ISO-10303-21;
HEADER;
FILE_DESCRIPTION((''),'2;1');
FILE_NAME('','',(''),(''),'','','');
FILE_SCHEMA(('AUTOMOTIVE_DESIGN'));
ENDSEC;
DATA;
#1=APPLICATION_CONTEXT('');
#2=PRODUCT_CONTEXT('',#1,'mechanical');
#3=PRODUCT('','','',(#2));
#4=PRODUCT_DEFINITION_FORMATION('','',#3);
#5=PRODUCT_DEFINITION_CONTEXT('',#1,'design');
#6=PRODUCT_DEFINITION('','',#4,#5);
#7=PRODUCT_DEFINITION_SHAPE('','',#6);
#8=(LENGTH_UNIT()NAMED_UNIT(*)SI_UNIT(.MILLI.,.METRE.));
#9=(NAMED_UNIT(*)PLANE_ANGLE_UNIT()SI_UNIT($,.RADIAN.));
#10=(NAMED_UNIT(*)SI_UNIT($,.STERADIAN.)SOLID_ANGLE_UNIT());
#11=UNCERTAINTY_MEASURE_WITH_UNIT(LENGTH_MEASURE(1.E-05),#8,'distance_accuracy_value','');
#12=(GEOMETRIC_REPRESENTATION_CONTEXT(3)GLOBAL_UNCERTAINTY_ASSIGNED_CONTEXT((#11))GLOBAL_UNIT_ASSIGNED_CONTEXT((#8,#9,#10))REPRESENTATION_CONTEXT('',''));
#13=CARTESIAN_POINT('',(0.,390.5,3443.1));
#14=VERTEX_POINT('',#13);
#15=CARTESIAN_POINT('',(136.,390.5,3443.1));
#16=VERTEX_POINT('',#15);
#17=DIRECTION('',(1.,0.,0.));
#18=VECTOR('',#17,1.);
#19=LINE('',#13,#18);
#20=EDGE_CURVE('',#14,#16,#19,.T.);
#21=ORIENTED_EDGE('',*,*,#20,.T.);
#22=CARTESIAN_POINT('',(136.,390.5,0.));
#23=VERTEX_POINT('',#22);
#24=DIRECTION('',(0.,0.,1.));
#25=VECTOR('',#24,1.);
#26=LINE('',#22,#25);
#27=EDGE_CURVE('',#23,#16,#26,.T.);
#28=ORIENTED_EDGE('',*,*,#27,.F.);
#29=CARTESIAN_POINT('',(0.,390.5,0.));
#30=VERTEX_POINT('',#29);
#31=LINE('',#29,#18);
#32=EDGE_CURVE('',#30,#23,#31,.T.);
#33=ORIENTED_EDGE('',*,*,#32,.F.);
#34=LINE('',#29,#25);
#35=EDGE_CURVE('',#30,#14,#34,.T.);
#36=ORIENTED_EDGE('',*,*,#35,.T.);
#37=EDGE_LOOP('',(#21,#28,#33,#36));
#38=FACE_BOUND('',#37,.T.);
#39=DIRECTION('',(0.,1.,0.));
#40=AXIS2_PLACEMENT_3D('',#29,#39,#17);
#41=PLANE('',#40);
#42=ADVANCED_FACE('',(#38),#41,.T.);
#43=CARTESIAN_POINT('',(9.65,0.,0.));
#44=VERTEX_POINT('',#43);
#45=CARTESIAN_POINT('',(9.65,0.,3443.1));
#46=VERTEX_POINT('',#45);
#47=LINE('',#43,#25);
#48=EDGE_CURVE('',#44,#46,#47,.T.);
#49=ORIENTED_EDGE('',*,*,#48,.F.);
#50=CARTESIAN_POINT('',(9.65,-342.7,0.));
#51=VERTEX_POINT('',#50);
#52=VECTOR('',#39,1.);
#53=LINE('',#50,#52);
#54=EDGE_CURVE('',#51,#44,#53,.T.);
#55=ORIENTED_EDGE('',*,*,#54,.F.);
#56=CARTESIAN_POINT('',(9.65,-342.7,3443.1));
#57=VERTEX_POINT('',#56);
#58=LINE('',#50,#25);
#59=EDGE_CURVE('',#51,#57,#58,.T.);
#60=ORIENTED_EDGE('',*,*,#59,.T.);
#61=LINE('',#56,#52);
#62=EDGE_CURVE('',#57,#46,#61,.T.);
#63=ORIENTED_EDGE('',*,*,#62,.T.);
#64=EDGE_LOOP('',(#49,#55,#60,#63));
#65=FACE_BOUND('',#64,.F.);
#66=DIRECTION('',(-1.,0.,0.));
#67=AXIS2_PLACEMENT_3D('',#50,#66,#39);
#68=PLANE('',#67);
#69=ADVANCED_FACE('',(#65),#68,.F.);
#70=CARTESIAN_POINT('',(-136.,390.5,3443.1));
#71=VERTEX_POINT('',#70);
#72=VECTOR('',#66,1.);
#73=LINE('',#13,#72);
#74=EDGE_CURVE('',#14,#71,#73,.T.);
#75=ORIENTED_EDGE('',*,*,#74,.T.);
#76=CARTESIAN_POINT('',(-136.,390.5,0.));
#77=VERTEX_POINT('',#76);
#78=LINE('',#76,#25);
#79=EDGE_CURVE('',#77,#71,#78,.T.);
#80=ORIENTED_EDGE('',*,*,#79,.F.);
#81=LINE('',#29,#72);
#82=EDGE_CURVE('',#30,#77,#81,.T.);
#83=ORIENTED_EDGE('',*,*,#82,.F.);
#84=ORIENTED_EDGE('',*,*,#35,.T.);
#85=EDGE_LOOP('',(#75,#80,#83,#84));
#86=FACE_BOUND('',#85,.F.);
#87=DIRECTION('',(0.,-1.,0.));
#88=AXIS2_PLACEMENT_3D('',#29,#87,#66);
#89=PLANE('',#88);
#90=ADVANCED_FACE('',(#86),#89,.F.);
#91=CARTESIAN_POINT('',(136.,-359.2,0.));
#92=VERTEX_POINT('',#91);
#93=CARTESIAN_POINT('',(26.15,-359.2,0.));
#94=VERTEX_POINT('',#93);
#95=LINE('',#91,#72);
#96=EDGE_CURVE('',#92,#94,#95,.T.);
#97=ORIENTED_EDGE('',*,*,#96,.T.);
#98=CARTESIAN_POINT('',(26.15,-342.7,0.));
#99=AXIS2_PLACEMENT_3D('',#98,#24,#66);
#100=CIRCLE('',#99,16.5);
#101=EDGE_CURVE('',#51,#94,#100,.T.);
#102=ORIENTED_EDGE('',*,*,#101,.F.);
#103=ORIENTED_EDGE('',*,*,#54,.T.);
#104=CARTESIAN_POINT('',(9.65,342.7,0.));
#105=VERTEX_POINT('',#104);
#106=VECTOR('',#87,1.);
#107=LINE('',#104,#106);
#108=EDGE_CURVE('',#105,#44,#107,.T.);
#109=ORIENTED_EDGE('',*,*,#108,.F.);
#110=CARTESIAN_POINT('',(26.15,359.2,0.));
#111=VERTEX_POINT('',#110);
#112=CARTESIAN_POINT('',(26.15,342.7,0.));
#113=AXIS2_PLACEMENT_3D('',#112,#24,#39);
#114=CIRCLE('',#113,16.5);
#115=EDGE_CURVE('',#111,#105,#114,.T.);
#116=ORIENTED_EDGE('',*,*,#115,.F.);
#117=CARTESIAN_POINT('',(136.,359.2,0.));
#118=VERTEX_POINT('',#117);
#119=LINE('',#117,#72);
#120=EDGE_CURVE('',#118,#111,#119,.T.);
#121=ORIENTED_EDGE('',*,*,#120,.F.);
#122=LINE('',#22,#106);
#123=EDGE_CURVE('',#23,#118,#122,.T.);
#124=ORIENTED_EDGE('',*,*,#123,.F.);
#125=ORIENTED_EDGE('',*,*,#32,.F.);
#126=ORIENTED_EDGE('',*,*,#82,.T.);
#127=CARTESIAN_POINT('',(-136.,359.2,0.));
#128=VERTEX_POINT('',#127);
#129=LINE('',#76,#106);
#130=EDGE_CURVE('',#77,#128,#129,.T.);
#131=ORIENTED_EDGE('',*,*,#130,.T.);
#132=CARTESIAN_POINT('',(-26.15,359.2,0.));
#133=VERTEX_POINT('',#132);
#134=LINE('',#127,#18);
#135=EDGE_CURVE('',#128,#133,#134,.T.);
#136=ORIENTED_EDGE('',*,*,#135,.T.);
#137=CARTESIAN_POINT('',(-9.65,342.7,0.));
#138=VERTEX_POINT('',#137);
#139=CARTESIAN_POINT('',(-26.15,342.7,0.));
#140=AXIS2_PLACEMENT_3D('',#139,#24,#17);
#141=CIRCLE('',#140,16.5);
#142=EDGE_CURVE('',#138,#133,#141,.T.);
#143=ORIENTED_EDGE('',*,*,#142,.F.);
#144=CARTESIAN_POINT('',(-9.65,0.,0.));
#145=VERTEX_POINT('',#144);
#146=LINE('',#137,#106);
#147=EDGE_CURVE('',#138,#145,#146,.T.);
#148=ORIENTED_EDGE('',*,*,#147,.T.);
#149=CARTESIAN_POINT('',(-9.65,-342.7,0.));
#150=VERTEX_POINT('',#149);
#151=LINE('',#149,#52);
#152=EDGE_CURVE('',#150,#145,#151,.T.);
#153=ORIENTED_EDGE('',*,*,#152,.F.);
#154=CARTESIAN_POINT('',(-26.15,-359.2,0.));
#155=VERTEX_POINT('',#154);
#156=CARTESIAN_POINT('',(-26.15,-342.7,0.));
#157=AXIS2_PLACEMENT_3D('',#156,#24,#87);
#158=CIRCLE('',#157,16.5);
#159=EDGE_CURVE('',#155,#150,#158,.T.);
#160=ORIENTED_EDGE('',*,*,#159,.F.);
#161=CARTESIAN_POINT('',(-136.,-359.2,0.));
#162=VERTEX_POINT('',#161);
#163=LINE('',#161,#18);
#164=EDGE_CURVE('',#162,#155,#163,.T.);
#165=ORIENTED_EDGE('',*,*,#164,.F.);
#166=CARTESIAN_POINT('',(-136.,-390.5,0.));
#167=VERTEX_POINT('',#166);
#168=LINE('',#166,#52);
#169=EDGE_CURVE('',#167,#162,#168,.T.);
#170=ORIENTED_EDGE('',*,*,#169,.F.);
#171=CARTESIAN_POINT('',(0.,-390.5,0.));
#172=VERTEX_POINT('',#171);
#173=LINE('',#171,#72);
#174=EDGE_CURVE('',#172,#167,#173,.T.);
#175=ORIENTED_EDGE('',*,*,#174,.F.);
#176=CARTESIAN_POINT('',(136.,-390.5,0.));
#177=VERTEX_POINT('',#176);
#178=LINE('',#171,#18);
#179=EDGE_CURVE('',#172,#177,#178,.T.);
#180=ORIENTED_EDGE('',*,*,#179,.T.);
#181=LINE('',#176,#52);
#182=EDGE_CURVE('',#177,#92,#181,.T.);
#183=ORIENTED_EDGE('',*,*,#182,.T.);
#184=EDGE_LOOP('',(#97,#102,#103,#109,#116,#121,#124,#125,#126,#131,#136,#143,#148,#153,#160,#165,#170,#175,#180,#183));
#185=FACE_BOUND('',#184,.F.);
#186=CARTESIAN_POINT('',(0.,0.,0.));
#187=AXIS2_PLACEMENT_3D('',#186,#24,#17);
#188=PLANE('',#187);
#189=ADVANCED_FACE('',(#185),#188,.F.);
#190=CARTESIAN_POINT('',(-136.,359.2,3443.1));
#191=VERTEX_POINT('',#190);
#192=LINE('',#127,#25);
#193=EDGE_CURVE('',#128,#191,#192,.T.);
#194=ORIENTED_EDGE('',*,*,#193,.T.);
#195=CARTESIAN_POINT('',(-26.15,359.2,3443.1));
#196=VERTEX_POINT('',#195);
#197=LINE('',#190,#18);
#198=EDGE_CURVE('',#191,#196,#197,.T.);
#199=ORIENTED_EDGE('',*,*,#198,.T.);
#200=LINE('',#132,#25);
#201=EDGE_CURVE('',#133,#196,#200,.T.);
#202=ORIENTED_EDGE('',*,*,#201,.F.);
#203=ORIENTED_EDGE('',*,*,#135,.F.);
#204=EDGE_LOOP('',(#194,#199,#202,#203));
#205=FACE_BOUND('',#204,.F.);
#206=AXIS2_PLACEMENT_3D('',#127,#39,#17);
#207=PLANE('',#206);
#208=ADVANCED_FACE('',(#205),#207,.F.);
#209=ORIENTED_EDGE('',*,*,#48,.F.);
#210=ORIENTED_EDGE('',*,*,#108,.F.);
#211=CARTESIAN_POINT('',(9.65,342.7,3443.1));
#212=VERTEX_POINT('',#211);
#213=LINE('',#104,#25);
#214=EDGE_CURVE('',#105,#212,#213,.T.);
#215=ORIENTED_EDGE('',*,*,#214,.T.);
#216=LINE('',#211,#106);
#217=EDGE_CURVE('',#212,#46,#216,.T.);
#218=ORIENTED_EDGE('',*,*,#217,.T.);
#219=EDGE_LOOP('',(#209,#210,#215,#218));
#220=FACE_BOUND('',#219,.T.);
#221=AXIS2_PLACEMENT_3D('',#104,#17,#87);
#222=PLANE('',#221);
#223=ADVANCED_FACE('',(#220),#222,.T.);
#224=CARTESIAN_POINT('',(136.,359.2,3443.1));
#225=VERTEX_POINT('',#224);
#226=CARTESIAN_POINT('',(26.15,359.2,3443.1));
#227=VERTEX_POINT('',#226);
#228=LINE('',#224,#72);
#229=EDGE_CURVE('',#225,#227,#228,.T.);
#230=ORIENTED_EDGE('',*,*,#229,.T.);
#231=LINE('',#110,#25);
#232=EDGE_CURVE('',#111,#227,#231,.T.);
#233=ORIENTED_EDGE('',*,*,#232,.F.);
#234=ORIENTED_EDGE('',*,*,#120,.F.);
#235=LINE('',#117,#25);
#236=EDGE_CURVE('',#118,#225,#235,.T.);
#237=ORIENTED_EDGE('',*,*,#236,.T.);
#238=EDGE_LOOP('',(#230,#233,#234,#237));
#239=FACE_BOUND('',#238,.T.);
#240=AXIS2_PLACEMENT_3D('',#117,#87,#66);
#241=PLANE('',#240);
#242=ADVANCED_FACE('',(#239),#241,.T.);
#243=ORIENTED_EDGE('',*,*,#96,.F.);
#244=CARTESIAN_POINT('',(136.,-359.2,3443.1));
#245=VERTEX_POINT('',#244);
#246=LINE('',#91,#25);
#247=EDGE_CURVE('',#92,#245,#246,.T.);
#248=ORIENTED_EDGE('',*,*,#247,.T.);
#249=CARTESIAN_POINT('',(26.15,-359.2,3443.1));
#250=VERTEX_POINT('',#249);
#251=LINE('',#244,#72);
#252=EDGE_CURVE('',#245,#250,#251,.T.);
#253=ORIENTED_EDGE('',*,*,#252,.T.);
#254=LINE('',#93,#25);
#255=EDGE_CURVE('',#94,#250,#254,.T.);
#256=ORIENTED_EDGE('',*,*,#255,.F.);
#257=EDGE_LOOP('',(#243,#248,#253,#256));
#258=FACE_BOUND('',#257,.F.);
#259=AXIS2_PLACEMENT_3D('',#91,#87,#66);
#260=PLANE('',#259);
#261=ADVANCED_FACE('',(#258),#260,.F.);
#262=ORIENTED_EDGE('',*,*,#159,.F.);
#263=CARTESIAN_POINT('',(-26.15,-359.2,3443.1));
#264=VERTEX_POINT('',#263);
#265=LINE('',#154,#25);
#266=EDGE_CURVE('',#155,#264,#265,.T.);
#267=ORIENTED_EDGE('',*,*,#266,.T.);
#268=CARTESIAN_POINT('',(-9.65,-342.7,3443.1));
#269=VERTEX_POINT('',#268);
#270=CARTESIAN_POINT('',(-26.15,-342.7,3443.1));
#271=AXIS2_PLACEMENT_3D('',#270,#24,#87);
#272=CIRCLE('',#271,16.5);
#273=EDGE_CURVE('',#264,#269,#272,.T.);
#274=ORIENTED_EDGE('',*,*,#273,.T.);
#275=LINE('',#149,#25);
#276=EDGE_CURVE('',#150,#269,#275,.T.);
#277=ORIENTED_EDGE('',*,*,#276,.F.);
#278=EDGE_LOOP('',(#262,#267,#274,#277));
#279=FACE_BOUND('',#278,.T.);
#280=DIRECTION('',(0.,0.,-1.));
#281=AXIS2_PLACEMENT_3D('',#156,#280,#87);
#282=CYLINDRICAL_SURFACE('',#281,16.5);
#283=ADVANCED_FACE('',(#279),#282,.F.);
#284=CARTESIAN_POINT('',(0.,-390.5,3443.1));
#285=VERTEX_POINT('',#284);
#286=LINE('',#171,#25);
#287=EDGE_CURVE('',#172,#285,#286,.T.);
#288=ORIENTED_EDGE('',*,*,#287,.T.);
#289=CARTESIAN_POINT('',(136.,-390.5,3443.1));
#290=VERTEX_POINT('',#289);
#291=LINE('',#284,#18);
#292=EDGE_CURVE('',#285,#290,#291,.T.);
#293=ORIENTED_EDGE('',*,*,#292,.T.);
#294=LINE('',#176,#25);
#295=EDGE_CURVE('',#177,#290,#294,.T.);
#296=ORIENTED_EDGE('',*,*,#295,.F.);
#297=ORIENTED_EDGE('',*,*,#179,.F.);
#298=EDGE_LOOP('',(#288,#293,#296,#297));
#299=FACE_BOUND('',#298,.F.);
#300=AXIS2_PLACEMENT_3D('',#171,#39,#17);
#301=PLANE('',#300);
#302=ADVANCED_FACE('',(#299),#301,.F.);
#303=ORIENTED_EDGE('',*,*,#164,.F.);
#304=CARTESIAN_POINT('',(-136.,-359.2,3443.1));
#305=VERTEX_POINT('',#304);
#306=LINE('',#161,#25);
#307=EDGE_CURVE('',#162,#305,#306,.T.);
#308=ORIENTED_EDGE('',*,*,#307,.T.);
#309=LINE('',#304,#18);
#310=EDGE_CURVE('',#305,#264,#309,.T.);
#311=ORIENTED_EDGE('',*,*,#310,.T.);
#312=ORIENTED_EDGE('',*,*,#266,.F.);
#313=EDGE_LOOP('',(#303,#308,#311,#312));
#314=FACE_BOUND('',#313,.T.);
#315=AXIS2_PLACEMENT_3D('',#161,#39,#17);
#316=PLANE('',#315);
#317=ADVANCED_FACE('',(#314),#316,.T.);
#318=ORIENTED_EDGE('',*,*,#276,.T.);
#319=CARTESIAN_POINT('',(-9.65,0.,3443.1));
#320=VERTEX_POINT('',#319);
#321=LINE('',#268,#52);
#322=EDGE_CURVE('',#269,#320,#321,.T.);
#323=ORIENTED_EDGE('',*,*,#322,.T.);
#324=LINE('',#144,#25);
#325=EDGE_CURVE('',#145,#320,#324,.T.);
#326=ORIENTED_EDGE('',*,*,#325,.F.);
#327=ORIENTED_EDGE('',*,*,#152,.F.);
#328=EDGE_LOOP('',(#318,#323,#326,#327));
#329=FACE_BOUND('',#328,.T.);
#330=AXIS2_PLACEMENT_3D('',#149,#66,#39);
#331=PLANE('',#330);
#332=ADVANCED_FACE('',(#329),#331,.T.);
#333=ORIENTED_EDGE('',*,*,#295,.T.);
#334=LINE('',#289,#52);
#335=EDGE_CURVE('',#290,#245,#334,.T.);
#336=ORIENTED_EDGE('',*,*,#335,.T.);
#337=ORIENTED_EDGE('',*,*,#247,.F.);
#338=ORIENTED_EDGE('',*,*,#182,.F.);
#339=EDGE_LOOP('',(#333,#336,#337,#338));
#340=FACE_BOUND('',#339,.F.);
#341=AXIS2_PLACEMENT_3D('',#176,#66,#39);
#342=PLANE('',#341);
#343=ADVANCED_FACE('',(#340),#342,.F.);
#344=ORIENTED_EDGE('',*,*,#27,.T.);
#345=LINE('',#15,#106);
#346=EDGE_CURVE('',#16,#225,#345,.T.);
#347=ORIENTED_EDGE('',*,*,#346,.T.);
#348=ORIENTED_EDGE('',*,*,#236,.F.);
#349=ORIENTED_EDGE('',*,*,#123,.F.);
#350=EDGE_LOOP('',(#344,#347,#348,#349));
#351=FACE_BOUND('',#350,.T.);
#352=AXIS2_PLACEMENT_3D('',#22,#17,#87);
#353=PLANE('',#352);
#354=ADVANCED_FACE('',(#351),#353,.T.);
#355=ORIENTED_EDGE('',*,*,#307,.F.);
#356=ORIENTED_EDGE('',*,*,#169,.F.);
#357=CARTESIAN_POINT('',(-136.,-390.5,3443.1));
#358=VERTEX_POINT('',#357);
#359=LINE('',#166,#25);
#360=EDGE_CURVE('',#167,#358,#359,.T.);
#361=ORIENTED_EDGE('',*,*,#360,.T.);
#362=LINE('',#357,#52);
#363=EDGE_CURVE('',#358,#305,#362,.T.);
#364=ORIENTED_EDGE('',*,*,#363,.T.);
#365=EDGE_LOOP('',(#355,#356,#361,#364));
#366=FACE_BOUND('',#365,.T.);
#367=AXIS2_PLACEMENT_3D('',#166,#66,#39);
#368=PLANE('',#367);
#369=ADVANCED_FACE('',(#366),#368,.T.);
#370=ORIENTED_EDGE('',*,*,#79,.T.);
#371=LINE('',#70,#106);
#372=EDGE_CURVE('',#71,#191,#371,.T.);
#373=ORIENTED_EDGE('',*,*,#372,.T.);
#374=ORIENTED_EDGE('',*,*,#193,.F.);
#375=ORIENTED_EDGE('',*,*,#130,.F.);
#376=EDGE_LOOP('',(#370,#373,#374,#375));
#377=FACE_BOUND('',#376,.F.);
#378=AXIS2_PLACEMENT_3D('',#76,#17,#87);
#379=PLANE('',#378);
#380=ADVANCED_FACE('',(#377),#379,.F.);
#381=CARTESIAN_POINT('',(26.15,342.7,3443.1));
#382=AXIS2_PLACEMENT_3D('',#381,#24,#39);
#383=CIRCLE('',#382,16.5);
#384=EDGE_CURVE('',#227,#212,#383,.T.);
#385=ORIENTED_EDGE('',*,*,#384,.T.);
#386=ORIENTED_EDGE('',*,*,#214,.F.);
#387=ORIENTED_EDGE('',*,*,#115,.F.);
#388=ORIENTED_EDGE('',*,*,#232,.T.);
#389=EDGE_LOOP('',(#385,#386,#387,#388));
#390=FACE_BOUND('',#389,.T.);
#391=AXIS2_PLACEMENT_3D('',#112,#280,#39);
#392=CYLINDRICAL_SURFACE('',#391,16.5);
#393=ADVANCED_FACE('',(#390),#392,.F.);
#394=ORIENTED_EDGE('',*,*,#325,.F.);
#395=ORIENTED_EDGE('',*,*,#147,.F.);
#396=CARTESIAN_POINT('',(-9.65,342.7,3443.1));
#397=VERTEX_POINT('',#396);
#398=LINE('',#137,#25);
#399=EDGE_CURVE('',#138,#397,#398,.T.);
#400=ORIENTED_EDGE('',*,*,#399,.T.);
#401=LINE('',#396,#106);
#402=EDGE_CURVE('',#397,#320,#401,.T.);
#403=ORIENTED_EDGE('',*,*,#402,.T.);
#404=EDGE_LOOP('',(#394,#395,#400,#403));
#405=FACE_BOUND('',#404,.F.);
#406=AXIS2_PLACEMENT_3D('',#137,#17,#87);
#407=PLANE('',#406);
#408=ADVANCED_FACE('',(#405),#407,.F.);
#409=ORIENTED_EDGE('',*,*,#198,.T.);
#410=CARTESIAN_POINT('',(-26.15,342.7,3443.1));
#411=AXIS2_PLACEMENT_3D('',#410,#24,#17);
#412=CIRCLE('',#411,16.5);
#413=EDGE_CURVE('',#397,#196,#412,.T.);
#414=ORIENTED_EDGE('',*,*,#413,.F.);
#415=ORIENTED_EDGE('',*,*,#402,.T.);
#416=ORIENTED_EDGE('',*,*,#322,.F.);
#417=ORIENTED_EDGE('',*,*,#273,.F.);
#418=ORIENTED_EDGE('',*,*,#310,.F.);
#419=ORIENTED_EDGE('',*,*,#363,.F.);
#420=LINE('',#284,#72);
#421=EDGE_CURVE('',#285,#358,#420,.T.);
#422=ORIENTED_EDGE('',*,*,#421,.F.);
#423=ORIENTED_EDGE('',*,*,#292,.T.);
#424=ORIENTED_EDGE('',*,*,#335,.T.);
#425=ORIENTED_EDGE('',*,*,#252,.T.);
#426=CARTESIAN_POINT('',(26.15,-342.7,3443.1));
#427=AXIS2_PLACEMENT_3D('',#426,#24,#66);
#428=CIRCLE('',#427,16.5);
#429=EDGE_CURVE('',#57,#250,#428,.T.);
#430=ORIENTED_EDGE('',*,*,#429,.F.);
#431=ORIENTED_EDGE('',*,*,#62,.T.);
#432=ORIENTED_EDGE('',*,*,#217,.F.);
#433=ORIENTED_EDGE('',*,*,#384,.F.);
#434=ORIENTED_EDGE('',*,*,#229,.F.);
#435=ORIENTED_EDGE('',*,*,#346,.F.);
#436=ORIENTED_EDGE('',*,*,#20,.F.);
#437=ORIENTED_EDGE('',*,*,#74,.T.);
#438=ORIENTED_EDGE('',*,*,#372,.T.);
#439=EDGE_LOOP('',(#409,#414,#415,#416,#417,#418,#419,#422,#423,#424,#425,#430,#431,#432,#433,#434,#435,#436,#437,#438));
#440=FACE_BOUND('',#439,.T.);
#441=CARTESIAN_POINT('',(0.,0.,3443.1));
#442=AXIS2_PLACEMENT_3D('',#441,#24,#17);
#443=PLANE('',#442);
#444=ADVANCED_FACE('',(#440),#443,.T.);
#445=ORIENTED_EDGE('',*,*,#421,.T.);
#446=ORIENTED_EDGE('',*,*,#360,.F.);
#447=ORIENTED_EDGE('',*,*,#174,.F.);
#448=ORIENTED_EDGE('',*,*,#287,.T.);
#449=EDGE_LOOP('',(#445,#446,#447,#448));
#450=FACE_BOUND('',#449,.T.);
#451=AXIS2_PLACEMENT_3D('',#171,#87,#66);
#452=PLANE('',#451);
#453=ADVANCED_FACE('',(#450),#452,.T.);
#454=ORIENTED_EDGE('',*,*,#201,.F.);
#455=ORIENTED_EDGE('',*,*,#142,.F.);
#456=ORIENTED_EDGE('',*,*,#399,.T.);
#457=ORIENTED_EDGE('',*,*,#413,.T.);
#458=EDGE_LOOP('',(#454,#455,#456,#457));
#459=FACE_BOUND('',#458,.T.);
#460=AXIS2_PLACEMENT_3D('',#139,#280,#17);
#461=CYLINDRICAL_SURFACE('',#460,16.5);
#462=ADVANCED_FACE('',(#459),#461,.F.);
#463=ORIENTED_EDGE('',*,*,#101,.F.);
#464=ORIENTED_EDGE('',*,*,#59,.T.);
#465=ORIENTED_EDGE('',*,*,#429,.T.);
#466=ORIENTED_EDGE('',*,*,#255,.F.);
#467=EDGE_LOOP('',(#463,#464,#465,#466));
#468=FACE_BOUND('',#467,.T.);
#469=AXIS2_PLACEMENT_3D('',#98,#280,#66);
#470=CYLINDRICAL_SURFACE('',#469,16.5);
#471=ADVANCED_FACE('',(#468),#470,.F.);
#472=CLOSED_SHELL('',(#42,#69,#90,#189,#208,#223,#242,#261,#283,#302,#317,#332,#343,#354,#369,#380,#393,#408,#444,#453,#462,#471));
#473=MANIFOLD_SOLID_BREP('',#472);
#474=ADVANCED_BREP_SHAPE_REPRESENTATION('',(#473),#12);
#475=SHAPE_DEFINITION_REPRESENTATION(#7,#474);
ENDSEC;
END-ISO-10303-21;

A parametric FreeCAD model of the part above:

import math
import FreeCAD as App
import Part
import Sketcher
from FreeCAD import Vector

doc = App.newDocument("Part")
body = doc.addObject("PartDesign::Body", "Body")

# Sketch on XY plane
sketch1 = body.newObject("Sketcher::SketchObject", "Sketch")
sketch1.AttachmentSupport = (doc.getObject("XY_Plane"), [""])
sketch1.MapMode = "FlatFace"
sketch1.addGeometry([
    Part.LineSegment(Vector(-136, -359.2, 0), Vector(-136, -390.5, 0)),  # 0
    Part.LineSegment(Vector(-136, -390.5, 0), Vector(136, -390.5, 0)),  # 1
    Part.LineSegment(Vector(136, -390.5, 0), Vector(136, -359.2, 0)),  # 2
    Part.LineSegment(Vector(136, -359.2, 0), Vector(26.15, -359.2, 0)),  # 3
    Part.ArcOfCircle(Part.Circle(Vector(26.15, -342.7, 0), Vector(0, 0, 1), 16.5), math.radians(180), math.radians(270)),  # 4
    Part.LineSegment(Vector(9.65, -342.7, 0), Vector(9.65, 342.7, 0)),  # 5
    Part.ArcOfCircle(Part.Circle(Vector(26.15, 342.7, 0), Vector(0, 0, 1), 16.5), math.radians(90), math.radians(180)),  # 6
    Part.LineSegment(Vector(26.15, 359.2, 0), Vector(136, 359.2, 0)),  # 7
    Part.LineSegment(Vector(136, 359.2, 0), Vector(136, 390.5, 0)),  # 8
    Part.LineSegment(Vector(136, 390.5, 0), Vector(-136, 390.5, 0)),  # 9
    Part.LineSegment(Vector(-136, 390.5, 0), Vector(-136, 359.2, 0)),  # 10
    Part.LineSegment(Vector(-136, 359.2, 0), Vector(-26.15, 359.2, 0)),  # 11
    Part.ArcOfCircle(Part.Circle(Vector(-26.15, 342.7, 0), Vector(0, 0, 1), 16.5), math.radians(0), math.radians(90)),  # 12
    Part.LineSegment(Vector(-9.65, 342.7, 0), Vector(-9.65, -342.7, 0)),  # 13
    Part.ArcOfCircle(Part.Circle(Vector(-26.15, -342.7, 0), Vector(0, 0, 1), 16.5), math.radians(-90), math.radians(0)),  # 14
    Part.LineSegment(Vector(-26.15, -359.2, 0), Vector(-136, -359.2, 0)),  # 15
], False)
sketch1.addConstraint([
    Sketcher.Constraint("Coincident", 0, 2, 1, 1),
    Sketcher.Constraint("Coincident", 1, 2, 2, 1),
    Sketcher.Constraint("Coincident", 2, 2, 3, 1),
    Sketcher.Constraint("Tangent", 3, 2, 4, 2),
    Sketcher.Constraint("Tangent", 4, 1, 5, 1),
    Sketcher.Constraint("Tangent", 5, 2, 6, 2),
    Sketcher.Constraint("Tangent", 6, 1, 7, 1),
    Sketcher.Constraint("Coincident", 7, 2, 8, 1),
    Sketcher.Constraint("Coincident", 8, 2, 9, 1),
    Sketcher.Constraint("Coincident", 9, 2, 10, 1),
    Sketcher.Constraint("Coincident", 10, 2, 11, 1),
    Sketcher.Constraint("Tangent", 11, 2, 12, 2),
    Sketcher.Constraint("Tangent", 12, 1, 13, 1),
    Sketcher.Constraint("Tangent", 13, 2, 14, 2),
    Sketcher.Constraint("Tangent", 14, 1, 15, 1),
    Sketcher.Constraint("Coincident", 15, 2, 0, 1),
    Sketcher.Constraint("Vertical", 0),
    Sketcher.Constraint("Horizontal", 1),
    Sketcher.Constraint("Vertical", 2),
    Sketcher.Constraint("Horizontal", 3),
    Sketcher.Constraint("Vertical", 5),
    Sketcher.Constraint("Horizontal", 7),
    Sketcher.Constraint("Vertical", 8),
    Sketcher.Constraint("Horizontal", 9),
    Sketcher.Constraint("Vertical", 10),
    Sketcher.Constraint("Horizontal", 11),
    Sketcher.Constraint("Vertical", 13),
    Sketcher.Constraint("Horizontal", 15),
    Sketcher.Constraint("Equal", 4, 6),
    Sketcher.Constraint("Equal", 6, 12),
    Sketcher.Constraint("Equal", 12, 14),
    Sketcher.Constraint("Symmetric", 4, 3, 12, 3, -1, 1),
    Sketcher.Constraint("Symmetric", 0, 2, 8, 2, -1, 1),
    Sketcher.Constraint("Symmetric", 7, 2, 10, 2, -2),
    Sketcher.Constraint("Symmetric", 2, 2, 15, 2, -2),
    Sketcher.Constraint("Radius", 4, 16.5),
    Sketcher.Constraint("DistanceY", 0, 2, 0, 1, 31.3),
    Sketcher.Constraint("DistanceX", 0, 2, -1, 1, 136.0),
    Sketcher.Constraint("DistanceY", 0, 2, -1, 1, 390.5),
    Sketcher.Constraint("DistanceX", -1, 1, 4, 1, 9.65),
])
pad1 = body.newObject("PartDesign::Pad", "Pad")
pad1.Profile = sketch1
pad1.Length = 3443.1

doc.recompute()
